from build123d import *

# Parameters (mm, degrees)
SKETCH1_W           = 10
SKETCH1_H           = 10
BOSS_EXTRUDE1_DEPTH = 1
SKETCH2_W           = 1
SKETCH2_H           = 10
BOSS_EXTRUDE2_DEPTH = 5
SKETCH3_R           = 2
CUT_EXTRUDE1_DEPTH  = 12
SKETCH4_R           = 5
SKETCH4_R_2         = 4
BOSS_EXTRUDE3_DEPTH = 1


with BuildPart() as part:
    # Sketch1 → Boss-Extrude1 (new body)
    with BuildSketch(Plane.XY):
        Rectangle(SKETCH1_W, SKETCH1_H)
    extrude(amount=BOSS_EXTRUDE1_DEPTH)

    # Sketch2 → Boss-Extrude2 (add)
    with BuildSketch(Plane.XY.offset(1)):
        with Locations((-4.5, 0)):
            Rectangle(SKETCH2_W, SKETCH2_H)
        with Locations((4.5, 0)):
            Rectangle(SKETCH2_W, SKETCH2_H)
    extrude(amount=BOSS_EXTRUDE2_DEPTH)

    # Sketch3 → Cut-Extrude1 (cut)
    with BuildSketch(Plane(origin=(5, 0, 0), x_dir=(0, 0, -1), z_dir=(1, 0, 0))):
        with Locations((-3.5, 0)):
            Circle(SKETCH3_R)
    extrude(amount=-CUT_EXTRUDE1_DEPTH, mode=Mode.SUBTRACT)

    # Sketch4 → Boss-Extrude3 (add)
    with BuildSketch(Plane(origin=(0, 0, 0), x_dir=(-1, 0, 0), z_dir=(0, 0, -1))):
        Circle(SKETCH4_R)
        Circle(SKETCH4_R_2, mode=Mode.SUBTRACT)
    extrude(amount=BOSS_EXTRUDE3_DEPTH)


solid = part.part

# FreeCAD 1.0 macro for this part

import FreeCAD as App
import Part
import Sketcher


def add_polygon(sketch, points):
    """Adds a closed chain of lines whose ends are joined by coincident constraints."""
    first, n = sketch.GeometryCount, len(points)
    for a, b in zip(points, points[1:] + points[:1]):
        sketch.addGeometry(Part.LineSegment(App.Vector(*a, 0), App.Vector(*b, 0)), False)
    for i in range(n):
        sketch.addConstraint(Sketcher.Constraint("Coincident", first + i, 2, first + (i + 1) % n, 1))

doc = App.newDocument("Part")
body = doc.addObject("PartDesign::Body", "Body")

sketch1 = body.newObject("Sketcher::SketchObject", "Sketch")
sketch1.AttachmentSupport = (doc.getObject("XY_Plane"), [""])
sketch1.MapMode = "FlatFace"
add_polygon(sketch1, [(-5, 5), (-5, -5), (5, -5), (5, 5)])
sketch1.addConstraint([
    Sketcher.Constraint("Vertical", 0),
    Sketcher.Constraint("Horizontal", 1),
    Sketcher.Constraint("Vertical", 2),
    Sketcher.Constraint("Horizontal", 3),
    Sketcher.Constraint("Symmetric", 0, 2, 2, 2, -1, 1),
    Sketcher.Constraint("Equal", 3, 0),
    Sketcher.Constraint("DistanceX", 1, 1, 1, 2, 10.0),
])
pad1 = body.newObject("PartDesign::Pad", "Pad")
pad1.Profile = sketch1
pad1.Length = 1

sketch2 = body.newObject("Sketcher::SketchObject", "Sketch001")
sketch2.AttachmentSupport = (doc.getObject("XY_Plane"), [""])
sketch2.MapMode = "FlatFace"
sketch2.AttachmentOffset = App.Placement(App.Vector(0, 0, 1), App.Rotation())
add_polygon(sketch2, [(-5, 5), (-5, -5), (-4, -5), (-4, 5)])
add_polygon(sketch2, [(4, 5), (4, -5), (5, -5), (5, 5)])
sketch2.addConstraint([
    Sketcher.Constraint("Vertical", 0),
    Sketcher.Constraint("Horizontal", 1),
    Sketcher.Constraint("Vertical", 2),
    Sketcher.Constraint("Horizontal", 3),
    Sketcher.Constraint("Vertical", 4),
    Sketcher.Constraint("Horizontal", 5),
    Sketcher.Constraint("Vertical", 6),
    Sketcher.Constraint("Horizontal", 7),
    Sketcher.Constraint("Symmetric", 2, 2, 4, 2, -1, 1),
    Sketcher.Constraint("Symmetric", 0, 2, 6, 2, -1, 1),
    Sketcher.Constraint("Horizontal", 1, 2, 4, 2),
    Sketcher.Constraint("DistanceX", 1, 1, 1, 2, 1.0),
    Sketcher.Constraint("DistanceY", 0, 2, 0, 1, 10.0),
    Sketcher.Constraint("DistanceX", 0, 2, -1, 1, 5.0),
])
pad2 = body.newObject("PartDesign::Pad", "Pad001")
pad2.Profile = sketch2
pad2.Length = 5

sketch3 = body.newObject("Sketcher::SketchObject", "Sketch002")
sketch3.AttachmentSupport = (doc.getObject("YZ_Plane"), [""])
sketch3.MapMode = "FlatFace"
sketch3.AttachmentOffset = App.Placement(App.Vector(0, 0, 5), App.Rotation())
sketch3.addGeometry(Part.Circle(App.Vector(0, 3.5, 0), App.Vector(0, 0, 1), 2), False)
sketch3.addConstraint([
    Sketcher.Constraint("PointOnObject", 0, 3, -2),
    Sketcher.Constraint("Diameter", 0, 4.0),
    Sketcher.Constraint("DistanceY", -1, 1, 0, 3, 3.5),
])
pocket1 = body.newObject("PartDesign::Pocket", "Pocket")
pocket1.Profile = sketch3
pocket1.Length = 12

sketch4 = body.newObject("Sketcher::SketchObject", "Sketch003")
sketch4.AttachmentSupport = (doc.getObject("XY_Plane"), [""])
sketch4.MapMode = "FlatFace"
sketch4.addGeometry([
    Part.Circle(App.Vector(0, 0, 0), App.Vector(0, 0, 1), 5),
    Part.Circle(App.Vector(0, 0, 0), App.Vector(0, 0, 1), 4),
], False)
sketch4.addConstraint([
    Sketcher.Constraint("Coincident", 0, 3, -1, 1),
    Sketcher.Constraint("Coincident", 1, 3, -1, 1),
    Sketcher.Constraint("Diameter", 0, 10.0),
    Sketcher.Constraint("Diameter", 1, 8.0),
])
pad3 = body.newObject("PartDesign::Pad", "Pad002")
pad3.Profile = sketch4
pad3.Length = 1
pad3.Reversed = True

doc.recompute()
